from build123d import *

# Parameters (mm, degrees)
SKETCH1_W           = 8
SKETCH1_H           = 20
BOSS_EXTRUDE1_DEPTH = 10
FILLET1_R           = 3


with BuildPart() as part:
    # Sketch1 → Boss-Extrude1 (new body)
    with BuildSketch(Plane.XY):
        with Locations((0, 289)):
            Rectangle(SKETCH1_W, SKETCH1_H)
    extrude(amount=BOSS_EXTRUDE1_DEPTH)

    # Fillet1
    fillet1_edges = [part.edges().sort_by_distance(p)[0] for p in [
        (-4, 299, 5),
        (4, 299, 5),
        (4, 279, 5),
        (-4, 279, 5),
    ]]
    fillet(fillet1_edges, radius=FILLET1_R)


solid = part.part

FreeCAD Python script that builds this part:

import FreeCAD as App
import Part
import Sketcher

V = App.Vector
Q = App.Units.Quantity


def edges_at(feature, points):
    """Names of the edges that pass closest to the given points."""
    edges = feature.Shape.Edges
    near = lambda p: min(range(len(edges)), key=lambda i: edges[i].distToShape(Part.Vertex(*p))[0])
    return sorted({f"Edge{near(p) + 1}" for p in points})


def add_polygon(sketch, points):
    """Adds a closed chain of lines whose ends are joined by coincident constraints."""
    first, n = sketch.GeometryCount, len(points)
    for a, b in zip(points, points[1:] + points[:1]):
        sketch.addGeometry(Part.LineSegment(App.Vector(*a, 0), App.Vector(*b, 0)), False)
    for i in range(n):
        sketch.addConstraint(Sketcher.Constraint("Coincident", first + i, 2, first + (i + 1) % n, 1))

doc = App.newDocument("Part")
params = doc.addObject("Spreadsheet::Sheet", "Params")
for row, (alias, value) in enumerate([
    ("sketch1_width", "8 mm"),
    ("sketch1_height", "20 mm"),
    ("pad1_length", "10 mm"),
    ("fillet_radius", "3 mm"),
], start=1):
    params.set(f"A{row}", alias)
    params.set(f"B{row}", "=" + value)
    params.setAlias(f"B{row}", alias)

body = doc.addObject("PartDesign::Body", "Body")

sketch1 = doc.addObject("Sketcher::SketchObject", "Sketch")
body.addObject(sketch1)
sketch1.AttachmentSupport = (doc.XY_Plane, [""])
sketch1.MapMode = "FlatFace"
add_polygon(sketch1, [(-4, 299), (-4, 279), (4, 279), (4, 299)])
sketch1.addConstraint([
    Sketcher.Constraint("Vertical", 0),
    Sketcher.Constraint("Horizontal", 1),
    Sketcher.Constraint("Vertical", 2),
    Sketcher.Constraint("Horizontal", 3),
    Sketcher.Constraint("DistanceX", 1, 1, 1, 2, Q("8 mm")),
    Sketcher.Constraint("DistanceY", 0, 2, 0, 1, Q("20 mm")),
    Sketcher.Constraint("DistanceX", 0, 2, -1, 1, Q("4 mm")),
    Sketcher.Constraint("DistanceY", -1, 1, 0, 2, Q("279 mm")),
])
sketch1.setExpression("Constraints[8]", "Params.sketch1_width")
sketch1.setExpression("Constraints[9]", "Params.sketch1_height")
pad1 = doc.addObject("PartDesign::Pad", "Pad")
body.addObject(pad1)
pad1.Profile = sketch1
pad1.setExpression("Length", "Params.pad1_length")
doc.recompute()

fillet = doc.addObject("PartDesign::Fillet", "Fillet")
body.addObject(fillet)
fillet.Base = (pad1, edges_at(pad1, [
    (-4, 299, 5),
    (4, 299, 5),
    (4, 279, 5),
    (-4, 279, 5),
]))
fillet.setExpression("Radius", "Params.fillet_radius")

doc.recompute()
